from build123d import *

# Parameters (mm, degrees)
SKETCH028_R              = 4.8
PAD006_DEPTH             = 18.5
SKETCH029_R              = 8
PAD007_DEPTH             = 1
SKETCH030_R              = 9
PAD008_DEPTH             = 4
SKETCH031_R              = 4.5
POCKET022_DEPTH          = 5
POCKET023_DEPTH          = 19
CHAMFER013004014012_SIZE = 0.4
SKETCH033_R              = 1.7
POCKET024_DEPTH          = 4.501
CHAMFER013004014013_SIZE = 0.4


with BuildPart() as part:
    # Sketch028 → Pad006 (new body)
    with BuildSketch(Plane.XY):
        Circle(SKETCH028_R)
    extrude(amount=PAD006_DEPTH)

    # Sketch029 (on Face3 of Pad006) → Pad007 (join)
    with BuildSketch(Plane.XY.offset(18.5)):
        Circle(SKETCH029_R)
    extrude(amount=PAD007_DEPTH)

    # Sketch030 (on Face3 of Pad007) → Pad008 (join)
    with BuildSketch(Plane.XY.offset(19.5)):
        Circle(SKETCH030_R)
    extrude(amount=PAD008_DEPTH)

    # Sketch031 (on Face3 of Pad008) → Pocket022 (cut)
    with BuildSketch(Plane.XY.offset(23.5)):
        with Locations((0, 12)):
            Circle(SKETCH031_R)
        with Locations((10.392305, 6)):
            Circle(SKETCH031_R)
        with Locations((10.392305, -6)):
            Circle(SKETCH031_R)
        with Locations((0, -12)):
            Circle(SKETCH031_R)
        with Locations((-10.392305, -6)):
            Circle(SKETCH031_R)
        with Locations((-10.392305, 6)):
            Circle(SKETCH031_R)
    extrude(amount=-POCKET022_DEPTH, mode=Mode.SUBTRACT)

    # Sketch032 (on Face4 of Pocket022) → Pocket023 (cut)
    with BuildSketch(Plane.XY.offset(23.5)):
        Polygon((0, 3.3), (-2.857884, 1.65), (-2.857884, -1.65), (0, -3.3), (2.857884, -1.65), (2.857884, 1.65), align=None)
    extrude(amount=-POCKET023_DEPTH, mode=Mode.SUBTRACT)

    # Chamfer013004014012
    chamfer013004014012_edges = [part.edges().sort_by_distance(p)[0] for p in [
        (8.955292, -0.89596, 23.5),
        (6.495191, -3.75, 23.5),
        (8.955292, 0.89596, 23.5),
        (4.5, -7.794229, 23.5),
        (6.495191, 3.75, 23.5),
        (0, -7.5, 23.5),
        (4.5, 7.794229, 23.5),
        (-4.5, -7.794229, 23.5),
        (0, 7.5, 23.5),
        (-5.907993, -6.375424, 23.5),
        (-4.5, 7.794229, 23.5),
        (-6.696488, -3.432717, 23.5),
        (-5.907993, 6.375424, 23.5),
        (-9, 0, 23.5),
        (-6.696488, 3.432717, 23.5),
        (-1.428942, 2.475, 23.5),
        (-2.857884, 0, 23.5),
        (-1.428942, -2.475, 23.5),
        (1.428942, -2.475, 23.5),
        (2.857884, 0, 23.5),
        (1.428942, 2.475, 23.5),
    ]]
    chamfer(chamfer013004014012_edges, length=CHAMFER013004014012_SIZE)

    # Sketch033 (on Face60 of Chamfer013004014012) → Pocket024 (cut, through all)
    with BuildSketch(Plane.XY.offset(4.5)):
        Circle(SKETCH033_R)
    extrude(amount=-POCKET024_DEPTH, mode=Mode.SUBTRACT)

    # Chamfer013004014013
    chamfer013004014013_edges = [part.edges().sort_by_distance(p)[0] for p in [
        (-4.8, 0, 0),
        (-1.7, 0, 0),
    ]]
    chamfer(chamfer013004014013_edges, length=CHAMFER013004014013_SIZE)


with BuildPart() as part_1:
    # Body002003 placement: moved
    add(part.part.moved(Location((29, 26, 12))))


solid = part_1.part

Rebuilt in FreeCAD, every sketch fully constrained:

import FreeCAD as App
import Part
import Sketcher
from FreeCAD import Vector
Q = App.Units.Quantity


def edges_at(feature, points):
    """Names of the edges that pass closest to the given points."""
    edges = feature.Shape.Edges
    near = lambda p: min(range(len(edges)), key=lambda i: edges[i].distToShape(Part.Vertex(*p))[0])
    return sorted({f"Edge{near(p) + 1}" for p in points})


def add_polygon(sketch, points):
    """Adds a closed chain of lines whose ends are joined by coincident constraints."""
    first, n = sketch.GeometryCount, len(points)
    for a, b in zip(points, points[1:] + points[:1]):
        sketch.addGeometry(Part.LineSegment(App.Vector(*a, 0), App.Vector(*b, 0)), False)
    for i in range(n):
        sketch.addConstraint(Sketcher.Constraint("Coincident", first + i, 2, first + (i + 1) % n, 1))

doc = App.newDocument("Part")
body = doc.addObject("PartDesign::Body", "Body")

# Sketch on XY plane
sketch1 = body.newObject("Sketcher::SketchObject", "Sketch")
sketch1.AttachmentSupport = (doc.getObject("XY_Plane"), [""])
sketch1.MapMode = "FlatFace"
sketch1.addGeometry(Part.Circle(Vector(0, 0, 0), Vector(0, 0, 1), 4.8), False)
sketch1.addConstraint(Sketcher.Constraint("Coincident", 0, 3, -1, 1))
sketch1.addConstraint(Sketcher.Constraint("Diameter", 0, 9.6))
pad1 = body.newObject("PartDesign::Pad", "Pad")
pad1.Profile = sketch1
pad1.Length = 18.5

# Sketch on XY plane
sketch2 = body.newObject("Sketcher::SketchObject", "Sketch001")
sketch2.AttachmentSupport = (doc.getObject("XY_Plane"), [""])
sketch2.MapMode = "FlatFace"
sketch2.AttachmentOffset = App.Placement(Vector(0, 0, 18.5), App.Rotation())
sketch2.addGeometry(Part.Circle(Vector(0, 0, 0), Vector(0, 0, 1), 8), False)
sketch2.addConstraint(Sketcher.Constraint("Coincident", 0, 3, -1, 1))
sketch2.addConstraint(Sketcher.Constraint("Diameter", 0, 16.0))
pad2 = body.newObject("PartDesign::Pad", "Pad001")
pad2.Profile = sketch2
pad2.Length = 1

# Sketch on XY plane
sketch3 = body.newObject("Sketcher::SketchObject", "Sketch002")
sketch3.AttachmentSupport = (doc.getObject("XY_Plane"), [""])
sketch3.MapMode = "FlatFace"
sketch3.AttachmentOffset = App.Placement(Vector(0, 0, 19.5), App.Rotation())
sketch3.addGeometry(Part.Circle(Vector(0, 0, 0), Vector(0, 0, 1), 9), False)
sketch3.addConstraint(Sketcher.Constraint("Coincident", 0, 3, -1, 1))
sketch3.addConstraint(Sketcher.Constraint("Diameter", 0, 18.0))
pad3 = body.newObject("PartDesign::Pad", "Pad002")
pad3.Profile = sketch3
pad3.Length = 4

# Sketch on XY plane
sketch4 = body.newObject("Sketcher::SketchObject", "Sketch003")
sketch4.AttachmentSupport = (doc.getObject("XY_Plane"), [""])
sketch4.MapMode = "FlatFace"
sketch4.AttachmentOffset = App.Placement(Vector(0, 0, 23.5), App.Rotation())
sketch4.addGeometry(Part.Circle(Vector(0, 12, 0), Vector(0, 0, 1), 4.5), False)
sketch4.addGeometry(Part.Circle(Vector(10.4, 6, 0), Vector(0, 0, 1), 4.5), False)
sketch4.addGeometry(Part.Circle(Vector(10.4, -6, 0), Vector(0, 0, 1), 4.5), False)
sketch4.addGeometry(Part.Circle(Vector(0, -12, 0), Vector(0, 0, 1), 4.5), False)
sketch4.addGeometry(Part.Circle(Vector(-10.4, -6, 0), Vector(0, 0, 1), 4.5), False)
sketch4.addGeometry(Part.Circle(Vector(-10.4, 6, 0), Vector(0, 0, 1), 4.5), False)
sketch4.addConstraint(Sketcher.Constraint("Equal", 0, 1))
sketch4.addConstraint(Sketcher.Constraint("Equal", 1, 2))
sketch4.addConstraint(Sketcher.Constraint("Equal", 2, 3))
sketch4.addConstraint(Sketcher.Constraint("Equal", 3, 4))
sketch4.addConstraint(Sketcher.Constraint("Equal", 4, 5))
sketch4.addConstraint(Sketcher.Constraint("Symmetric", 0, 3, 3, 3, -1, 1))
sketch4.addConstraint(Sketcher.Constraint("Symmetric", 1, 3, 4, 3, -1, 1))
sketch4.addConstraint(Sketcher.Constraint("Symmetric", 2, 3, 5, 3, -1, 1))
sketch4.addConstraint(Sketcher.Constraint("Symmetric", 2, 3, 4, 3, -2))
sketch4.addConstraint(Sketcher.Constraint("PointOnObject", 0, 3, -2))
sketch4.addConstraint(Sketcher.Constraint("Diameter", 0, 9.0))
sketch4.addConstraint(Sketcher.Constraint("DistanceY", -1, 1, 0, 3, 12.0))
sketch4.addConstraint(Sketcher.Constraint("DistanceY", -1, 1, 1, 3, 6.0))
sketch4.addConstraint(Sketcher.Constraint("DistanceX", 4, 3, 2, 3, 20.78461))
pocket1 = body.newObject("PartDesign::Pocket", "Pocket")
pocket1.Profile = sketch4
pocket1.Length = 5

# Sketch on XY plane
sketch5 = body.newObject("Sketcher::SketchObject", "Sketch004")
sketch5.AttachmentSupport = (doc.getObject("XY_Plane"), [""])
sketch5.MapMode = "FlatFace"
sketch5.AttachmentOffset = App.Placement(Vector(0, 0, 23.5), App.Rotation())
add_polygon(sketch5, [(0, 3.3), (-2.9, 1.6), (-2.9, -1.6), (0, -3.3), (2.9, -1.6), (2.9, 1.6)])  # lines 0-5
sketch5.addConstraint(Sketcher.Constraint("Vertical", 1))
sketch5.addConstraint(Sketcher.Constraint("Vertical", 4))
sketch5.addConstraint(Sketcher.Constraint("Symmetric", 0, 2, 3, 2, -1, 1))
sketch5.addConstraint(Sketcher.Constraint("Symmetric", 2, 2, 5, 2, -1, 1))
sketch5.addConstraint(Sketcher.Constraint("PointOnObject", 2, 2, -2))
sketch5.addConstraint(Sketcher.Constraint("Parallel", 2, 5))
sketch5.addConstraint(Sketcher.Constraint("Horizontal", 1, 2, 3, 2))
sketch5.addConstraint(Sketcher.Constraint("Angle", 0, Q("-150.000001 deg")))
sketch5.addConstraint(Sketcher.Constraint("DistanceY", 1, 2, 1, 1, 3.3))
sketch5.addConstraint(Sketcher.Constraint("Distance", 0, 3.3))
pocket2 = body.newObject("PartDesign::Pocket", "Pocket001")
pocket2.Profile = sketch5
pocket2.Length = 19
doc.recompute()

chamfer = body.newObject("PartDesign::Chamfer", "Chamfer")
chamfer.Base = (pocket2, edges_at(pocket2, [
    (9, 0, 23.5),
    (6.495, -3.75, 23.5),
    (9, 0, 23.5),
    (4.5, -7.794, 23.5),
    (6.495, 3.75, 23.5),
    (0, -7.5, 23.5),
    (4.5, 7.794, 23.5),
    (-4.5, -7.794, 23.5),
    (0, 7.5, 23.5),
    (-6.495, -3.75, 23.5),
    (-4.5, 7.794, 23.5),
    (-6.495, -3.75, 23.5),
    (-6.495, 3.75, 23.5),
    (-9, 0, 23.5),
    (-6.495, 3.75, 23.5),
    (-1.429, 2.475, 23.5),
    (-2.858, 0, 23.5),
    (-1.429, -2.475, 23.5),
    (1.429, -2.475, 23.5),
    (2.858, 0, 23.5),
    (1.429, 2.475, 23.5),
]))
chamfer.Size = 0.4

# Sketch on XY plane
sketch6 = body.newObject("Sketcher::SketchObject", "Sketch005")
sketch6.AttachmentSupport = (doc.getObject("XY_Plane"), [""])
sketch6.MapMode = "FlatFace"
sketch6.AttachmentOffset = App.Placement(Vector(0, 0, 4.5), App.Rotation())
sketch6.addGeometry(Part.Circle(Vector(0, 0, 0), Vector(0, 0, 1), 1.7), False)
sketch6.addConstraint(Sketcher.Constraint("Coincident", 0, 3, -1, 1))
sketch6.addConstraint(Sketcher.Constraint("Diameter", 0, 3.4))
pocket3 = body.newObject("PartDesign::Pocket", "Pocket002")
pocket3.Profile = sketch6
pocket3.Type = "ThroughAll"
doc.recompute()

chamfer2 = body.newObject("PartDesign::Chamfer", "Chamfer001")
chamfer2.Base = (pocket3, edges_at(pocket3, [(-4.8, 0, 0), (-1.7, 0, 0)]))
chamfer2.Size = 0.4
body2 = doc.addObject("PartDesign::Body", "Body001")
doc.recompute()

body.Placement = App.Placement(Vector(29, 26, 12), App.Rotation(Vector(0, 0, 1), 0))
boolean = body2.newObject("PartDesign::Boolean", "Boolean")
boolean.Type = "Fuse"
boolean.addObjects([body])

doc.recompute()
